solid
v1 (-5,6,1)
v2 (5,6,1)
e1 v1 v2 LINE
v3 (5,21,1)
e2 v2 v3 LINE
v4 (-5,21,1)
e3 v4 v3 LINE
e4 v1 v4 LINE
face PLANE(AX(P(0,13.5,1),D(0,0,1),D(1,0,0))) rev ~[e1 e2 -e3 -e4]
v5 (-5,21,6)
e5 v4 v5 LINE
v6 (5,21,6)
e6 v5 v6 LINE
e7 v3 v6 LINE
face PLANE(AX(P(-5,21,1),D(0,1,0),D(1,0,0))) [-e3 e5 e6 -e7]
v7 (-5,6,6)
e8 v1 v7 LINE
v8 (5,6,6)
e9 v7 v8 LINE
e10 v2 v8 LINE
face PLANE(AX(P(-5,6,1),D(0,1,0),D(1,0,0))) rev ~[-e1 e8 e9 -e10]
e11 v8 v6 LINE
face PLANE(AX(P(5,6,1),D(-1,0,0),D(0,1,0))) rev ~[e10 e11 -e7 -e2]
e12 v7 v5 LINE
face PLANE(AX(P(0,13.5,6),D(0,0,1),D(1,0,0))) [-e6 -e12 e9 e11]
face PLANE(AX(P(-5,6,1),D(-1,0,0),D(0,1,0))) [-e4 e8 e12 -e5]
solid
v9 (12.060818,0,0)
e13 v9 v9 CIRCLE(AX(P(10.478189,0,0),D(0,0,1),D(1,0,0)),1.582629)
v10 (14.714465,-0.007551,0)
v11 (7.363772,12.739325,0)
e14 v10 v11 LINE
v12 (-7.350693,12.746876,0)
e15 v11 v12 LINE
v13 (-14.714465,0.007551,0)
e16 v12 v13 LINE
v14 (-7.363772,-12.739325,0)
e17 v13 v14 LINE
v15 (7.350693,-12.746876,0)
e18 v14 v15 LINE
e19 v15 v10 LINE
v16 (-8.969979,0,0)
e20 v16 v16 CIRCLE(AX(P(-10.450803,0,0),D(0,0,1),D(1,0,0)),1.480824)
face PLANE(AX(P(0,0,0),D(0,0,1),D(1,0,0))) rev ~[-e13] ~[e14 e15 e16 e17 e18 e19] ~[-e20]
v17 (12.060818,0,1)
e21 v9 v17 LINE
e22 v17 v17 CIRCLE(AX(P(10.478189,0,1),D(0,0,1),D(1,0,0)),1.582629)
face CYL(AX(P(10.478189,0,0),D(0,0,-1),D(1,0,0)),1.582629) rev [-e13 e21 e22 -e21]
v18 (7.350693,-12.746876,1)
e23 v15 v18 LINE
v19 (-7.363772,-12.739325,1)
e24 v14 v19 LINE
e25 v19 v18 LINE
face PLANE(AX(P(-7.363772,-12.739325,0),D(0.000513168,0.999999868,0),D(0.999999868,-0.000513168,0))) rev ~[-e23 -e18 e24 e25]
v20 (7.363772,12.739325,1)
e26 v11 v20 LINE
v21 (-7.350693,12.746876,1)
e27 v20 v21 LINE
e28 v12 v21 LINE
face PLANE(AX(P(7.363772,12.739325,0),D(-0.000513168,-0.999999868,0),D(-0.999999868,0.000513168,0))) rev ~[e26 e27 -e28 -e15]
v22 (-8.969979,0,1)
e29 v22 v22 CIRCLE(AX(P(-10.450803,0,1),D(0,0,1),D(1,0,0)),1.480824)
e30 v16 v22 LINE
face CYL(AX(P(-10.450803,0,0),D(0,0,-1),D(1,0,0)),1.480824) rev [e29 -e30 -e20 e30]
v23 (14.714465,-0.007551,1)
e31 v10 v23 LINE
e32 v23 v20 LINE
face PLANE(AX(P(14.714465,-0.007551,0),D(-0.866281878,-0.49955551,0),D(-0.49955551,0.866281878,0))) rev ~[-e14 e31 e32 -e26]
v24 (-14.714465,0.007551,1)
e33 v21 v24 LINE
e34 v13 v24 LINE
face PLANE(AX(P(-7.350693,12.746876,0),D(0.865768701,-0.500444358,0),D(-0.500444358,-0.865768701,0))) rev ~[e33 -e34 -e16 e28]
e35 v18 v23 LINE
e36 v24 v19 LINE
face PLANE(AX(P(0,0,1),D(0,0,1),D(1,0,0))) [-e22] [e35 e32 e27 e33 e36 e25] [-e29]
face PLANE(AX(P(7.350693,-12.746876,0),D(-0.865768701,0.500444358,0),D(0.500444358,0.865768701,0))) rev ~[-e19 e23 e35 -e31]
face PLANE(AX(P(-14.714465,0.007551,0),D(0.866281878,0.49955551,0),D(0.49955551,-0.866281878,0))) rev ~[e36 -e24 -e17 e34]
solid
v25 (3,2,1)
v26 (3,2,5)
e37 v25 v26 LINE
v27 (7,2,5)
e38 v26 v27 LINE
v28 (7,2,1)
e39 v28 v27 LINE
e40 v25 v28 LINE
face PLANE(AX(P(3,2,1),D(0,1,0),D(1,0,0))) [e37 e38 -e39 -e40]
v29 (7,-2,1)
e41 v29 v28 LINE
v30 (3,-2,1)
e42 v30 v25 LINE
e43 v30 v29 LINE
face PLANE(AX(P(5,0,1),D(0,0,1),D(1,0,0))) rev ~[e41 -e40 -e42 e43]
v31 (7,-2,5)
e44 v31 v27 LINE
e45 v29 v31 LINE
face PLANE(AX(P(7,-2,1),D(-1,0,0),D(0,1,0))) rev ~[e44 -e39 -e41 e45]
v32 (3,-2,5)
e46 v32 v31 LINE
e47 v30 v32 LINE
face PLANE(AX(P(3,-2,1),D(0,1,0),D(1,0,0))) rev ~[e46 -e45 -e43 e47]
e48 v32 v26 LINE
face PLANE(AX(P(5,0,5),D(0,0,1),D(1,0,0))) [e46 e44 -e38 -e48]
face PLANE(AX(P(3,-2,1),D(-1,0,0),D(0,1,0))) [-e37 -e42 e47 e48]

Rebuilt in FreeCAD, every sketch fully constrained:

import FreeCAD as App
import Part
import Sketcher
from FreeCAD import Vector

doc = App.newDocument("Part")
params = doc.addObject("Spreadsheet::Sheet", "Params")
for row, (alias, value) in enumerate([
    ("pad1_length", "1 mm"),
    ("sketch2_width", "10 mm"),
    ("sketch2_height", "15 mm"),
    ("pad2_length", "5 mm"),
    ("sketch3_width", "4 mm"),
    ("pad3_length", "4 mm"),
], start=1):
    params.set(f"A{row}", alias)
    params.set(f"B{row}", "=" + value)
    params.setAlias(f"B{row}", alias)

body = doc.addObject("PartDesign::Body", "Body")

# Sketch on XY plane
sketch1 = body.newObject("Sketcher::SketchObject", "Sketch")
sketch1.AttachmentSupport = (doc.getObject("XY_Plane"), [""])
sketch1.MapMode = "FlatFace"
sketch1.addGeometry([
    Part.LineSegment(Vector(7.4, 12.7, 0), Vector(-7.4, 12.7, 0)),  # 0
    Part.LineSegment(Vector(-7.4, 12.7, 0), Vector(-14.7, 0, 0)),  # 1
    Part.LineSegment(Vector(-14.7, 0, 0), Vector(-7.4, -12.7, 0)),  # 2
    Part.LineSegment(Vector(-7.4, -12.7, 0), Vector(7.4, -12.7, 0)),  # 3
    Part.LineSegment(Vector(7.4, -12.7, 0), Vector(14.7, 0, 0)),  # 4
    Part.LineSegment(Vector(14.7, 0, 0), Vector(7.4, 12.7, 0)),  # 5
    Part.Circle(Vector(-10.5, 0, 0), Vector(0, 0, 1), 1.5),  # 6
    Part.Circle(Vector(10.5, 0, 0), Vector(0, 0, 1), 1.6),  # 7
], False)
sketch1.addConstraint([
    Sketcher.Constraint("Coincident", 0, 2, 1, 1),
    Sketcher.Constraint("Coincident", 1, 2, 2, 1),
    Sketcher.Constraint("Coincident", 2, 2, 3, 1),
    Sketcher.Constraint("Coincident", 3, 2, 4, 1),
    Sketcher.Constraint("Coincident", 4, 2, 5, 1),
    Sketcher.Constraint("Coincident", 5, 2, 0, 1),
    Sketcher.Constraint("Symmetric", 0, 2, 3, 2, -1, 1),
    Sketcher.Constraint("Symmetric", 1, 2, 4, 2, -1, 1),
    Sketcher.Constraint("Symmetric", 2, 2, 5, 2, -1, 1),
    Sketcher.Constraint("PointOnObject", 6, 3, -1),
    Sketcher.Constraint("PointOnObject", 7, 3, -1),
    Sketcher.Constraint("Equal", 0, 1),
    Sketcher.Constraint("Equal", 1, 2),
    Sketcher.Constraint("Diameter", 7, 3.165258),
    Sketcher.Constraint("Diameter", 6, 2.961648),
    Sketcher.Constraint("DistanceY", 2, 2, 0, 2, 25.486201),
    Sketcher.Constraint("DistanceX", -1, 1, 7, 3, 10.478189),
    Sketcher.Constraint("DistanceY", -1, 1, 1, 2, 0.007551),
    Sketcher.Constraint("DistanceX", 6, 3, 0, 2, 3.10011),
    Sketcher.Constraint("DistanceX", 0, 2, 7, 3, 17.828882),
    Sketcher.Constraint("DistanceX", 6, 3, 2, 2, 3.087031),
])
pad1 = body.newObject("PartDesign::Pad", "Pad")
pad1.Profile = sketch1
pad1.setExpression("Length", "Params.pad1_length")
body2 = doc.addObject("PartDesign::Body", "Body001")

# Sketch on XY plane
sketch2 = body2.newObject("Sketcher::SketchObject", "Sketch001")
sketch2.AttachmentSupport = (doc.getObject("XY_Plane001"), [""])
sketch2.MapMode = "FlatFace"
sketch2.AttachmentOffset = App.Placement(Vector(0, 0, 1), App.Rotation())
sketch2.addGeometry([
    Part.LineSegment(Vector(-5, 21, 0), Vector(-5, 6, 0)),
    Part.LineSegment(Vector(-5, 6, 0), Vector(5, 6, 0)),
    Part.LineSegment(Vector(5, 6, 0), Vector(5, 21, 0)),
    Part.LineSegment(Vector(5, 21, 0), Vector(-5, 21, 0)),
], False)
sketch2.addConstraint([
    Sketcher.Constraint("Coincident", 0, 2, 1, 1),
    Sketcher.Constraint("Coincident", 1, 2, 2, 1),
    Sketcher.Constraint("Coincident", 2, 2, 3, 1),
    Sketcher.Constraint("Coincident", 3, 2, 0, 1),
    Sketcher.Constraint("Vertical", 0),
    Sketcher.Constraint("Horizontal", 1),
    Sketcher.Constraint("Vertical", 2),
    Sketcher.Constraint("Horizontal", 3),
    Sketcher.Constraint("DistanceX", 1, 1, 1, 2, 10.0),
    Sketcher.Constraint("DistanceY", 0, 2, 0, 1, 15.0),
    Sketcher.Constraint("DistanceX", 0, 2, -1, 1, 5.0),
    Sketcher.Constraint("DistanceY", -1, 1, 0, 2, 6.0),
])
sketch2.setExpression("Constraints[8]", "Params.sketch2_width")
sketch2.setExpression("Constraints[9]", "Params.sketch2_height")
pad2 = body2.newObject("PartDesign::Pad", "Pad001")
pad2.Profile = sketch2
pad2.setExpression("Length", "Params.pad2_length")
body3 = doc.addObject("PartDesign::Body", "Body002")

# Sketch on XY plane
sketch3 = body3.newObject("Sketcher::SketchObject", "Sketch002")
sketch3.AttachmentSupport = (doc.getObject("XY_Plane002"), [""])
sketch3.MapMode = "FlatFace"
sketch3.AttachmentOffset = App.Placement(Vector(0, 0, 1), App.Rotation())
sketch3.addGeometry([
    Part.LineSegment(Vector(3, 2, 0), Vector(3, -2, 0)),
    Part.LineSegment(Vector(3, -2, 0), Vector(7, -2, 0)),
    Part.LineSegment(Vector(7, -2, 0), Vector(7, 2, 0)),
    Part.LineSegment(Vector(7, 2, 0), Vector(3, 2, 0)),
], False)
sketch3.addConstraint([
    Sketcher.Constraint("Coincident", 0, 2, 1, 1),
    Sketcher.Constraint("Coincident", 1, 2, 2, 1),
    Sketcher.Constraint("Coincident", 2, 2, 3, 1),
    Sketcher.Constraint("Coincident", 3, 2, 0, 1),
    Sketcher.Constraint("Vertical", 0),
    Sketcher.Constraint("Horizontal", 1),
    Sketcher.Constraint("Vertical", 2),
    Sketcher.Constraint("Horizontal", 3),
    Sketcher.Constraint("Equal", 3, 0),
    Sketcher.Constraint("DistanceX", 1, 1, 1, 2, 4.0),
    Sketcher.Constraint("DistanceX", -1, 1, 0, 2, 3.0),
    Sketcher.Constraint("DistanceY", 0, 2, -1, 1, 2.0),
])
sketch3.setExpression("Constraints[9]", "Params.sketch3_width")
pad3 = body3.newObject("PartDesign::Pad", "Pad002")
pad3.Profile = sketch3
pad3.setExpression("Length", "Params.pad3_length")

doc.recompute()
